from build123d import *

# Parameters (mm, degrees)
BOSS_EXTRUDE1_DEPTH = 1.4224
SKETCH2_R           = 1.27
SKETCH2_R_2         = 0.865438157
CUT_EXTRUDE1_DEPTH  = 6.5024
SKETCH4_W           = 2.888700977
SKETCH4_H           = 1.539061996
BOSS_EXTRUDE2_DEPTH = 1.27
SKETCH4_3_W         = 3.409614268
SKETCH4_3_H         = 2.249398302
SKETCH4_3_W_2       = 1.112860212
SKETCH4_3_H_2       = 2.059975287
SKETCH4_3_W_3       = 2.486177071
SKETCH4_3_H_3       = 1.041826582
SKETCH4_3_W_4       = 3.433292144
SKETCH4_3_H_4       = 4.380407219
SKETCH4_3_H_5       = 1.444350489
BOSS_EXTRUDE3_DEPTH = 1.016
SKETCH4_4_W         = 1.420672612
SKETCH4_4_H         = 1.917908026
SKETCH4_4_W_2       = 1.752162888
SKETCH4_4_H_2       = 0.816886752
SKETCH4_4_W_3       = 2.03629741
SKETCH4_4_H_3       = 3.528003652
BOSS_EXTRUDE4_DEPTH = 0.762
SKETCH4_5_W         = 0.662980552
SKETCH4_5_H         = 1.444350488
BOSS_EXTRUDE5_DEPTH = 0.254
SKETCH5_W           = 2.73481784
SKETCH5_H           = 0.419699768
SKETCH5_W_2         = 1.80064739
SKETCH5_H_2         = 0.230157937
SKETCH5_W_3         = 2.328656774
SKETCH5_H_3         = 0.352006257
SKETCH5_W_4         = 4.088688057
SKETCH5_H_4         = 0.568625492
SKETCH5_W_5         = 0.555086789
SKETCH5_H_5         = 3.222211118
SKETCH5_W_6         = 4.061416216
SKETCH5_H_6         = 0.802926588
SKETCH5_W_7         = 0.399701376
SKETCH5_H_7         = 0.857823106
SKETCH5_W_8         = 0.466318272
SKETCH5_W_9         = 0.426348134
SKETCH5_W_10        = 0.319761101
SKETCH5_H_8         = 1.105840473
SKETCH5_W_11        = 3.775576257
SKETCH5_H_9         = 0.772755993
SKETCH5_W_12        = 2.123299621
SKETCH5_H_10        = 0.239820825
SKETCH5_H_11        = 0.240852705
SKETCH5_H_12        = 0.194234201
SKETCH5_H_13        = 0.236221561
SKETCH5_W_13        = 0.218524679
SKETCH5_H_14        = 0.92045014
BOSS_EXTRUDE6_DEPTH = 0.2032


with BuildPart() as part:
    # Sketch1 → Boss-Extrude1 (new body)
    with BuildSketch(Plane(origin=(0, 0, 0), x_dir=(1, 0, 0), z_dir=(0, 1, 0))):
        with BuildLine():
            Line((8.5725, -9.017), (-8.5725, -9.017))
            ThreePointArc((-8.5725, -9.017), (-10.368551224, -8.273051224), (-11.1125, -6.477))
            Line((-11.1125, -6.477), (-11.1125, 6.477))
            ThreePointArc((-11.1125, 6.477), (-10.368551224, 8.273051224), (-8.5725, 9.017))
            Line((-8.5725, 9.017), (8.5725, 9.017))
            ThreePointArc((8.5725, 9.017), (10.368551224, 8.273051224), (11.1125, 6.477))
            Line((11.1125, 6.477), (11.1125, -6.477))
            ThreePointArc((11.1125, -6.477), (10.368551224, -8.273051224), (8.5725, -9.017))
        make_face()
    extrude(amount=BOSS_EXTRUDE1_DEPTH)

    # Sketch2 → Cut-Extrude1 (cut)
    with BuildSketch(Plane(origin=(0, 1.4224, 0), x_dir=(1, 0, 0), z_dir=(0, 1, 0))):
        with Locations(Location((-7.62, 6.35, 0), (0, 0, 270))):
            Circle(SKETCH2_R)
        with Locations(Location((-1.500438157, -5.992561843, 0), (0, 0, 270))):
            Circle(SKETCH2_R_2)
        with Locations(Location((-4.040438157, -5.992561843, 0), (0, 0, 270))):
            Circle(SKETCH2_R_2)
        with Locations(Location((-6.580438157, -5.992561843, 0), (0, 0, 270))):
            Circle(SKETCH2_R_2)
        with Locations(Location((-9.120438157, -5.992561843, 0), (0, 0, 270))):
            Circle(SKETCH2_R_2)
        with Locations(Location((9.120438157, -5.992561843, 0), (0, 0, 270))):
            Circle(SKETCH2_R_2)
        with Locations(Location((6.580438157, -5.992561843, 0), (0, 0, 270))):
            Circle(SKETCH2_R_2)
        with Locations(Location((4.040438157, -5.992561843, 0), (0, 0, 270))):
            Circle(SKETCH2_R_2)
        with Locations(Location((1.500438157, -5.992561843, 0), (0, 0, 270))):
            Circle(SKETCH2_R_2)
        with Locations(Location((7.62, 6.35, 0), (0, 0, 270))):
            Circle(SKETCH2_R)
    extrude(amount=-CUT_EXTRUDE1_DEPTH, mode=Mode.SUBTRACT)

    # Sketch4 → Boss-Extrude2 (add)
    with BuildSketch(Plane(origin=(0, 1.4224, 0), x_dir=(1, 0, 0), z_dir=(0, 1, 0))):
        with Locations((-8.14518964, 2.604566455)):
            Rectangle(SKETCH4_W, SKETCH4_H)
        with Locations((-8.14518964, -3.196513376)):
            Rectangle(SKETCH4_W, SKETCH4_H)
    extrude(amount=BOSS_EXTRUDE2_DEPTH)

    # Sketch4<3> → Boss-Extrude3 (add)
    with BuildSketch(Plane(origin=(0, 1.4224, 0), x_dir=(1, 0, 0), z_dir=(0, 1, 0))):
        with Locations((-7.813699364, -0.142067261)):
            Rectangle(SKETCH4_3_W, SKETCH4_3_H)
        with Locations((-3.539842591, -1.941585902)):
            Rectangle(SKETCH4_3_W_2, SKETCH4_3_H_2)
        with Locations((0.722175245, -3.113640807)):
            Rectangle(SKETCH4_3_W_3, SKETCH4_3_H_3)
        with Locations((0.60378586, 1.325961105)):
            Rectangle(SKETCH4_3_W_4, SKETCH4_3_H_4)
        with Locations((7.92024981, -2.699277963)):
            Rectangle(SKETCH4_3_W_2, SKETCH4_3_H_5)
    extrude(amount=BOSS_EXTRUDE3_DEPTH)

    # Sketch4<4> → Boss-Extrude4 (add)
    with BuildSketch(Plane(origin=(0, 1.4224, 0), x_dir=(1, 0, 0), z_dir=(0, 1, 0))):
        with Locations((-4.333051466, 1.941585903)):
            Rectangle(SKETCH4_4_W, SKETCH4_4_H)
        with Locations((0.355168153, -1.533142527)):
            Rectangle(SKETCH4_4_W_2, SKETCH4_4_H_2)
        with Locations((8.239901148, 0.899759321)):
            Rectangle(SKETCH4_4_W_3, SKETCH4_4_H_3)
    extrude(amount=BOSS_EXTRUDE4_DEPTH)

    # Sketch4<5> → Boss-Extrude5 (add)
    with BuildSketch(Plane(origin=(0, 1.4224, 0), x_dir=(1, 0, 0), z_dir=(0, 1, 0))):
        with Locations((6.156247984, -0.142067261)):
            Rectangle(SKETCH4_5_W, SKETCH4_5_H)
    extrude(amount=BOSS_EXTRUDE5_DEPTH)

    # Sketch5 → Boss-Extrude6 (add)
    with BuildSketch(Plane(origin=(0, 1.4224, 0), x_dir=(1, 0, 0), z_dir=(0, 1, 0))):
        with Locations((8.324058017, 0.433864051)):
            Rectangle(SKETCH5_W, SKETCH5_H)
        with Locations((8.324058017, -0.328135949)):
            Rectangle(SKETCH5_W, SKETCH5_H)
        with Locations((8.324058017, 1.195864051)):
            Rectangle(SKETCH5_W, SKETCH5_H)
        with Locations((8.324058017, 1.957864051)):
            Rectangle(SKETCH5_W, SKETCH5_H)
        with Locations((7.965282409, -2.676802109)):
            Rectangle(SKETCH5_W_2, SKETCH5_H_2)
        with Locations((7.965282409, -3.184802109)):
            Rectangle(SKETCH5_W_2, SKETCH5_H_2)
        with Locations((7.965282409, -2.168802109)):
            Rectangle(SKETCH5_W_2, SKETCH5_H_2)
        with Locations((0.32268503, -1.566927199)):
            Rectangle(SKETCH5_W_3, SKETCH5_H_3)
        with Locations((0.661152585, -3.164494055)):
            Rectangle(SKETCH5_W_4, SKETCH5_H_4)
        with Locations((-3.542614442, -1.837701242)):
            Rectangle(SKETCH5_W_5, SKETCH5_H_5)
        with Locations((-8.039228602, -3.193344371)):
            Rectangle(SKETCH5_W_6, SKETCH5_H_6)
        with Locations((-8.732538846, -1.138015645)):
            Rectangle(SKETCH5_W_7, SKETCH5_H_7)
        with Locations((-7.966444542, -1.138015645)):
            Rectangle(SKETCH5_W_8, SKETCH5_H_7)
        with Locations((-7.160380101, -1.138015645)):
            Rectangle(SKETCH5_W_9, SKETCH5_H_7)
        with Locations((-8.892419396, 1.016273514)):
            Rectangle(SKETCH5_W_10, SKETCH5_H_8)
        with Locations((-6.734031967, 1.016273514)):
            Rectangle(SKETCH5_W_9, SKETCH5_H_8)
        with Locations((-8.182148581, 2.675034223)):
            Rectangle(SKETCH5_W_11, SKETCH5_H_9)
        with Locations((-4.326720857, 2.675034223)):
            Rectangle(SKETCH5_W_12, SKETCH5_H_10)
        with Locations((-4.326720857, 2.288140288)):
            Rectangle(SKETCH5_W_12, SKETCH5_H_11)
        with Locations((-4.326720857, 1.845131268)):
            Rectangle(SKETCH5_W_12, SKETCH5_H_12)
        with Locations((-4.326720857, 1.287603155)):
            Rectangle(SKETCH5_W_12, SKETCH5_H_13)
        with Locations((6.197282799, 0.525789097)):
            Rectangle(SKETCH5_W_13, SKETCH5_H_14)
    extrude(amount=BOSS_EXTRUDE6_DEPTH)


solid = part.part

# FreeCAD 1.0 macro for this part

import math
import FreeCAD as App
import Part
import Sketcher
Q = App.Units.Quantity


def add_polygon(sketch, points):
    """Adds a closed chain of lines whose ends are joined by coincident constraints."""
    first, n = sketch.GeometryCount, len(points)
    for a, b in zip(points, points[1:] + points[:1]):
        sketch.addGeometry(Part.LineSegment(App.Vector(*a, 0), App.Vector(*b, 0)), False)
    for i in range(n):
        sketch.addConstraint(Sketcher.Constraint("Coincident", first + i, 2, first + (i + 1) % n, 1))

doc = App.newDocument("Part")
body = doc.addObject("PartDesign::Body", "Body")

# Sketch on XZ plane
sketch1 = body.newObject("Sketcher::SketchObject", "Sketch")
sketch1.AttachmentSupport = (doc.getObject("XZ_Plane"), [""])
sketch1.MapMode = "FlatFace"
sketch1.addGeometry(Part.LineSegment(App.Vector(-8.5725, 9.017, 0), App.Vector(8.5725, 9.017, 0)), False)
sketch1.addGeometry(Part.ArcOfCircle(Part.Circle(App.Vector(8.5725, 6.477, 0), App.Vector(0, 0, 1), 2.54), math.radians(0), math.radians(90)), False)
sketch1.addGeometry(Part.LineSegment(App.Vector(11.1125, 6.477, 0), App.Vector(11.1125, -6.477, 0)), False)
sketch1.addGeometry(Part.ArcOfCircle(Part.Circle(App.Vector(8.5725, -6.477, 0), App.Vector(0, 0, 1), 2.54), math.radians(-90), math.radians(0)), False)
sketch1.addGeometry(Part.LineSegment(App.Vector(8.5725, -9.017, 0), App.Vector(-8.5725, -9.017, 0)), False)
sketch1.addGeometry(Part.ArcOfCircle(Part.Circle(App.Vector(-8.5725, -6.477, 0), App.Vector(0, 0, 1), 2.54), math.radians(-180), math.radians(-90)), False)
sketch1.addGeometry(Part.LineSegment(App.Vector(-11.1125, -6.477, 0), App.Vector(-11.1125, 6.477, 0)), False)
sketch1.addGeometry(Part.ArcOfCircle(Part.Circle(App.Vector(-8.5725, 6.477, 0), App.Vector(0, 0, 1), 2.54), math.radians(90), math.radians(180)), False)
sketch1.addConstraint(Sketcher.Constraint("Tangent", 0, 2, 1, 2))
sketch1.addConstraint(Sketcher.Constraint("Tangent", 1, 1, 2, 1))
sketch1.addConstraint(Sketcher.Constraint("Tangent", 2, 2, 3, 2))
sketch1.addConstraint(Sketcher.Constraint("Tangent", 3, 1, 4, 1))
sketch1.addConstraint(Sketcher.Constraint("Tangent", 4, 2, 5, 2))
sketch1.addConstraint(Sketcher.Constraint("Tangent", 5, 1, 6, 1))
sketch1.addConstraint(Sketcher.Constraint("Tangent", 6, 2, 7, 2))
sketch1.addConstraint(Sketcher.Constraint("Tangent", 7, 1, 0, 1))
sketch1.addConstraint(Sketcher.Constraint("Horizontal", 0))
sketch1.addConstraint(Sketcher.Constraint("Vertical", 2))
sketch1.addConstraint(Sketcher.Constraint("Horizontal", 4))
sketch1.addConstraint(Sketcher.Constraint("Vertical", 6))
sketch1.addConstraint(Sketcher.Constraint("Equal", 1, 3))
sketch1.addConstraint(Sketcher.Constraint("Equal", 3, 5))
sketch1.addConstraint(Sketcher.Constraint("Equal", 5, 7))
sketch1.addConstraint(Sketcher.Constraint("Symmetric", 1, 3, 5, 3, -1, 1))
sketch1.addConstraint(Sketcher.Constraint("Radius", 1, Q("0.1 in")))
sketch1.addConstraint(Sketcher.Constraint("DistanceY", 2, 2, 2, 1, Q("0.51 in")))
sketch1.addConstraint(Sketcher.Constraint("DistanceX", 0, 1, 0, 2, Q("0.675 in")))
pad1 = body.newObject("PartDesign::Pad", "Pad")
pad1.Profile = sketch1
pad1.Length = Q("0.056 in")
pad1.Reversed = True

# Sketch on XZ plane
sketch2 = body.newObject("Sketcher::SketchObject", "Sketch001")
sketch2.AttachmentSupport = (doc.getObject("XZ_Plane"), [""])
sketch2.MapMode = "FlatFace"
sketch2.AttachmentOffset = App.Placement(App.Vector(0, 0, -0.056 * 25.4), App.Rotation())
sketch2.addGeometry(Part.Circle(App.Vector(-7.62, -6.35, 0), App.Vector(0, 0, 1), 1.27), False)
sketch2.addGeometry(Part.Circle(App.Vector(-1.500438, 5.992562, 0), App.Vector(0, 0, 1), 0.865438), False)
sketch2.addGeometry(Part.Circle(App.Vector(-4.040438, 5.992562, 0), App.Vector(0, 0, 1), 0.865438), False)
sketch2.addGeometry(Part.Circle(App.Vector(-6.580438, 5.992562, 0), App.Vector(0, 0, 1), 0.865438), False)
sketch2.addGeometry(Part.Circle(App.Vector(-9.120438, 5.992562, 0), App.Vector(0, 0, 1), 0.865438), False)
sketch2.addGeometry(Part.Circle(App.Vector(9.120438, 5.992562, 0), App.Vector(0, 0, 1), 0.865438), False)
sketch2.addGeometry(Part.Circle(App.Vector(6.580438, 5.992562, 0), App.Vector(0, 0, 1), 0.865438), False)
sketch2.addGeometry(Part.Circle(App.Vector(4.040438, 5.992562, 0), App.Vector(0, 0, 1), 0.865438), False)
sketch2.addGeometry(Part.Circle(App.Vector(1.500438, 5.992562, 0), App.Vector(0, 0, 1), 0.865438), False)
sketch2.addGeometry(Part.Circle(App.Vector(7.62, -6.35, 0), App.Vector(0, 0, 1), 1.27), False)
sketch2.addConstraint(Sketcher.Constraint("Equal", 1, 2))
sketch2.addConstraint(Sketcher.Constraint("Equal", 2, 3))
sketch2.addConstraint(Sketcher.Constraint("Equal", 3, 4))
sketch2.addConstraint(Sketcher.Constraint("Equal", 4, 5))
sketch2.addConstraint(Sketcher.Constraint("Equal", 5, 6))
sketch2.addConstraint(Sketcher.Constraint("Equal", 6, 7))
sketch2.addConstraint(Sketcher.Constraint("Equal", 7, 8))
sketch2.addConstraint(Sketcher.Constraint("Equal", 0, 9))
sketch2.addConstraint(Sketcher.Constraint("Symmetric", 4, 3, 5, 3, -2))
sketch2.addConstraint(Sketcher.Constraint("Symmetric", 3, 3, 6, 3, -2))
sketch2.addConstraint(Sketcher.Constraint("Symmetric", 2, 3, 7, 3, -2))
sketch2.addConstraint(Sketcher.Constraint("Symmetric", 1, 3, 8, 3, -2))
sketch2.addConstraint(Sketcher.Constraint("Symmetric", 0, 3, 9, 3, -2))
sketch2.addConstraint(Sketcher.Constraint("Horizontal", 1, 3, 2, 3))
sketch2.addConstraint(Sketcher.Constraint("Horizontal", 2, 3, 3, 3))
sketch2.addConstraint(Sketcher.Constraint("Horizontal", 3, 3, 4, 3))
sketch2.addConstraint(Sketcher.Constraint("Diameter", 0, Q("0.1 in")))
sketch2.addConstraint(Sketcher.Constraint("DistanceX", 0, 3, -1, 1, Q("0.3 in")))
sketch2.addConstraint(Sketcher.Constraint("DistanceX", 2, 3, 1, 3, Q("0.1 in")))
sketch2.addConstraint(Sketcher.Constraint("DistanceX", 3, 3, 2, 3, Q("0.1 in")))
sketch2.addConstraint(Sketcher.Constraint("DistanceX", 4, 3, 3, 3, Q("0.1 in")))
sketch2.addConstraint(Sketcher.Constraint("DistanceY", 0, 3, -1, 1, Q("0.25 in")))
sketch2.addConstraint(Sketcher.Constraint("Diameter", 1, 1.730876))
sketch2.addConstraint(Sketcher.Constraint("DistanceX", 1, 3, -1, 1, 1.500438))
sketch2.addConstraint(Sketcher.Constraint("DistanceY", -1, 1, 1, 3, 5.992562))
pocket1 = body.newObject("PartDesign::Pocket", "Pocket")
pocket1.Profile = sketch2
pocket1.Length = Q("0.256 in")
pocket1.Reversed = True

# Sketch on XZ plane
sketch3 = body.newObject("Sketcher::SketchObject", "Sketch002")
sketch3.AttachmentSupport = (doc.getObject("XZ_Plane"), [""])
sketch3.MapMode = "FlatFace"
sketch3.AttachmentOffset = App.Placement(App.Vector(0, 0, -0.056 * 25.4), App.Rotation())
add_polygon(sketch3, [(-9.58954, -3.374097), (-9.58954, -1.835035), (-6.700839, -1.835035), (-6.700839, -3.374097)])  # lines 0-3
add_polygon(sketch3, [(-9.58954, 2.426982), (-9.58954, 3.966044), (-6.700839, 3.966044), (-6.700839, 2.426982)])  # lines 4-7
sketch3.addConstraint(Sketcher.Constraint("Vertical", 0))
sketch3.addConstraint(Sketcher.Constraint("Horizontal", 1))
sketch3.addConstraint(Sketcher.Constraint("Vertical", 2))
sketch3.addConstraint(Sketcher.Constraint("Horizontal", 3))
sketch3.addConstraint(Sketcher.Constraint("Vertical", 4))
sketch3.addConstraint(Sketcher.Constraint("Horizontal", 5))
sketch3.addConstraint(Sketcher.Constraint("Vertical", 6))
sketch3.addConstraint(Sketcher.Constraint("Horizontal", 7))
sketch3.addConstraint(Sketcher.Constraint("Vertical", 3, 2, 4, 2))
sketch3.addConstraint(Sketcher.Constraint("Vertical", 2, 2, 5, 2))
sketch3.addConstraint(Sketcher.Constraint("Equal", 2, 4))
sketch3.addConstraint(Sketcher.Constraint("DistanceX", 1, 1, 1, 2, 2.888701))
sketch3.addConstraint(Sketcher.Constraint("DistanceY", 0, 1, 0, 2, 1.539062))
sketch3.addConstraint(Sketcher.Constraint("DistanceX", 0, 2, -1, 1, 9.58954))
sketch3.addConstraint(Sketcher.Constraint("DistanceY", 0, 2, 4, 2, 5.80108))
sketch3.addConstraint(Sketcher.Constraint("DistanceY", 0, 2, -1, 1, 1.835035))
pad2 = body.newObject("PartDesign::Pad", "Pad001")
pad2.Profile = sketch3
pad2.Length = Q("0.05 in")
pad2.Reversed = True

# Sketch on XZ plane
sketch4 = body.newObject("Sketcher::SketchObject", "Sketch003")
sketch4.AttachmentSupport = (doc.getObject("XZ_Plane"), [""])
sketch4.MapMode = "FlatFace"
sketch4.AttachmentOffset = App.Placement(App.Vector(0, 0, -0.056 * 25.4), App.Rotation())
add_polygon(sketch4, [(-9.518506, -0.982632), (-9.518506, 1.266766), (-6.108892, 1.266766), (-6.108892, -0.982632)])  # lines 0-3
add_polygon(sketch4, [(-4.096273, 0.911598), (-4.096273, 2.971574), (-2.983412, 2.971574), (-2.983412, 0.911598)])  # lines 4-7
add_polygon(sketch4, [(-0.520913, 2.592728), (-0.520913, 3.634554), (1.965264, 3.634554), (1.965264, 2.592728)])  # lines 8-11
add_polygon(sketch4, [(-1.11286, -3.516165), (-1.11286, 0.864243), (2.320432, 0.864243), (2.320432, -3.516165)])  # lines 12-15
add_polygon(sketch4, [(7.36382, 1.977103), (7.36382, 3.421453), (8.47668, 3.421453), (8.47668, 1.977103)])  # lines 16-19
sketch4.addConstraint(Sketcher.Constraint("Vertical", 0))
sketch4.addConstraint(Sketcher.Constraint("Horizontal", 1))
sketch4.addConstraint(Sketcher.Constraint("Vertical", 2))
sketch4.addConstraint(Sketcher.Constraint("Horizontal", 3))
sketch4.addConstraint(Sketcher.Constraint("Vertical", 4))
sketch4.addConstraint(Sketcher.Constraint("Horizontal", 5))
sketch4.addConstraint(Sketcher.Constraint("Vertical", 6))
sketch4.addConstraint(Sketcher.Constraint("Horizontal", 7))
sketch4.addConstraint(Sketcher.Constraint("Vertical", 8))
sketch4.addConstraint(Sketcher.Constraint("Horizontal", 9))
sketch4.addConstraint(Sketcher.Constraint("Vertical", 10))
sketch4.addConstraint(Sketcher.Constraint("Horizontal", 11))
sketch4.addConstraint(Sketcher.Constraint("Vertical", 12))
sketch4.addConstraint(Sketcher.Constraint("Horizontal", 13))
sketch4.addConstraint(Sketcher.Constraint("Vertical", 14))
sketch4.addConstraint(Sketcher.Constraint("Horizontal", 15))
sketch4.addConstraint(Sketcher.Constraint("Vertical", 16))
sketch4.addConstraint(Sketcher.Constraint("Horizontal", 17))
sketch4.addConstraint(Sketcher.Constraint("Vertical", 18))
sketch4.addConstraint(Sketcher.Constraint("Horizontal", 19))
sketch4.addConstraint(Sketcher.Constraint("Equal", 7, 17))
sketch4.addConstraint(Sketcher.Constraint("DistanceY", 0, 1, 0, 2, 2.249398))
sketch4.addConstraint(Sketcher.Constraint("DistanceX", 5, 1, 5, 2, 1.11286))
sketch4.addConstraint(Sketcher.Constraint("DistanceY", 16, 1, 16, 2, 1.44435))
sketch4.addConstraint(Sketcher.Constraint("DistanceY", -1, 1, 6, 2, 0.911598))
sketch4.addConstraint(Sketcher.Constraint("DistanceX", 5, 2, 8, 2, 2.462499))
sketch4.addConstraint(Sketcher.Constraint("DistanceY", 16, 2, 9, 2, 0.213101))
sketch4.addConstraint(Sketcher.Constraint("DistanceX", 1, 1, 1, 2, 3.409614))
sketch4.addConstraint(Sketcher.Constraint("DistanceX", 9, 1, 9, 2, 2.486177))
sketch4.addConstraint(Sketcher.Constraint("DistanceX", 13, 1, 13, 2, 3.433292))
sketch4.addConstraint(Sketcher.Constraint("DistanceY", 4, 1, 4, 2, 2.059975))
sketch4.addConstraint(Sketcher.Constraint("DistanceY", 8, 1, 8, 2, 1.041827))
sketch4.addConstraint(Sketcher.Constraint("DistanceY", 12, 1, 12, 2, 4.380407))
sketch4.addConstraint(Sketcher.Constraint("DistanceY", 2, 2, -1, 1, 0.982632))
sketch4.addConstraint(Sketcher.Constraint("DistanceX", 12, 2, -1, 1, 1.11286))
sketch4.addConstraint(Sketcher.Constraint("DistanceX", -1, 1, 16, 2, 7.36382))
sketch4.addConstraint(Sketcher.Constraint("DistanceX", 1, 2, 4, 2, 2.01262))
sketch4.addConstraint(Sketcher.Constraint("DistanceY", 5, 2, 8, 2, 0.662981))
sketch4.addConstraint(Sketcher.Constraint("DistanceY", 12, 2, 5, 2, 2.107331))
sketch4.addConstraint(Sketcher.Constraint("DistanceX", 10, 2, 13, 2, 0.355168))
pad3 = body.newObject("PartDesign::Pad", "Pad002")
pad3.Profile = sketch4
pad3.Length = Q("0.04 in")
pad3.Reversed = True

# Sketch on XZ plane
sketch5 = body.newObject("Sketcher::SketchObject", "Sketch004")
sketch5.AttachmentSupport = (doc.getObject("XZ_Plane"), [""])
sketch5.MapMode = "FlatFace"
sketch5.AttachmentOffset = App.Placement(App.Vector(0, 0, -0.056 * 25.4), App.Rotation())
add_polygon(sketch5, [(-5.043388, -2.90054), (-5.043388, -0.982632), (-3.622715, -0.982632), (-3.622715, -2.90054)])  # lines 0-3
add_polygon(sketch5, [(-0.520913, 1.124699), (-0.520913, 1.941586), (1.23125, 1.941586), (1.23125, 1.124699)])  # lines 4-7
add_polygon(sketch5, [(7.221752, -2.663761), (7.221752, 0.864243), (9.25805, 0.864243), (9.25805, -2.663761)])  # lines 8-11
sketch5.addConstraint(Sketcher.Constraint("Vertical", 0))
sketch5.addConstraint(Sketcher.Constraint("Horizontal", 1))
sketch5.addConstraint(Sketcher.Constraint("Vertical", 2))
sketch5.addConstraint(Sketcher.Constraint("Horizontal", 3))
sketch5.addConstraint(Sketcher.Constraint("Vertical", 4))
sketch5.addConstraint(Sketcher.Constraint("Horizontal", 5))
sketch5.addConstraint(Sketcher.Constraint("Vertical", 6))
sketch5.addConstraint(Sketcher.Constraint("Horizontal", 7))
sketch5.addConstraint(Sketcher.Constraint("Vertical", 8))
sketch5.addConstraint(Sketcher.Constraint("Horizontal", 9))
sketch5.addConstraint(Sketcher.Constraint("Vertical", 10))
sketch5.addConstraint(Sketcher.Constraint("Horizontal", 11))
sketch5.addConstraint(Sketcher.Constraint("DistanceY", 0, 1, 0, 2, 1.917908))
sketch5.addConstraint(Sketcher.Constraint("DistanceY", -1, 1, 6, 2, 1.124699))
sketch5.addConstraint(Sketcher.Constraint("DistanceX", 1, 2, 4, 2, 3.101802))
sketch5.addConstraint(Sketcher.Constraint("DistanceX", 6, 2, 9, 2, 8.0268))
sketch5.addConstraint(Sketcher.Constraint("DistanceX", 1, 1, 1, 2, 1.420673))
sketch5.addConstraint(Sketcher.Constraint("DistanceX", 5, 1, 5, 2, 1.752163))
sketch5.addConstraint(Sketcher.Constraint("DistanceX", 9, 1, 9, 2, 2.036297))
sketch5.addConstraint(Sketcher.Constraint("DistanceY", 4, 1, 4, 2, 0.816887))
sketch5.addConstraint(Sketcher.Constraint("DistanceY", 8, 1, 8, 2, 3.528004))
sketch5.addConstraint(Sketcher.Constraint("DistanceY", 0, 2, -1, 1, 0.982632))
sketch5.addConstraint(Sketcher.Constraint("DistanceX", -1, 1, 5, 2, 1.23125))
sketch5.addConstraint(Sketcher.Constraint("DistanceY", 10, 2, -1, 1, 2.663761))
pad4 = body.newObject("PartDesign::Pad", "Pad003")
pad4.Profile = sketch5
pad4.Length = Q("0.03 in")
pad4.Reversed = True

# Sketch on XZ plane
sketch6 = body.newObject("Sketcher::SketchObject", "Sketch005")
sketch6.AttachmentSupport = (doc.getObject("XZ_Plane"), [""])
sketch6.MapMode = "FlatFace"
sketch6.AttachmentOffset = App.Placement(App.Vector(0, 0, -0.056 * 25.4), App.Rotation())
add_polygon(sketch6, [(5.824758, -0.580108), (5.824758, 0.864243), (6.487738, 0.864243), (6.487738, -0.580108)])  # lines 0-3
sketch6.addConstraint(Sketcher.Constraint("Vertical", 0))
sketch6.addConstraint(Sketcher.Constraint("Horizontal", 1))
sketch6.addConstraint(Sketcher.Constraint("Vertical", 2))
sketch6.addConstraint(Sketcher.Constraint("Horizontal", 3))
sketch6.addConstraint(Sketcher.Constraint("DistanceX", 1, 1, 1, 2, 0.662981))
sketch6.addConstraint(Sketcher.Constraint("DistanceY", 0, 1, 0, 2, 1.44435))
sketch6.addConstraint(Sketcher.Constraint("DistanceX", -1, 1, 1, 2, 6.487738))
sketch6.addConstraint(Sketcher.Constraint("DistanceY", -1, 1, 0, 2, 0.864243))
pad5 = body.newObject("PartDesign::Pad", "Pad004")
pad5.Profile = sketch6
pad5.Length = Q("0.01 in")
pad5.Reversed = True

# Sketch on XZ plane
sketch7 = body.newObject("Sketcher::SketchObject", "Sketch006")
sketch7.AttachmentSupport = (doc.getObject("XZ_Plane"), [""])
sketch7.MapMode = "FlatFace"
sketch7.AttachmentOffset = App.Placement(App.Vector(0, 0, -0.056 * 25.4), App.Rotation())
add_polygon(sketch7, [(6.956649, -0.643714), (6.956649, -0.224014), (9.691467, -0.224014), (9.691467, -0.643714)])  # lines 0-3
add_polygon(sketch7, [(6.956649, 0.118286), (6.956649, 0.537986), (9.691467, 0.537986), (9.691467, 0.118286)])  # lines 4-7
add_polygon(sketch7, [(6.956649, -1.405714), (6.956649, -0.986014), (9.691467, -0.986014), (9.691467, -1.405714)])  # lines 8-11
add_polygon(sketch7, [(6.956649, -2.167714), (6.956649, -1.748014), (9.691467, -1.748014), (9.691467, -2.167714)])  # lines 12-15
add_polygon(sketch7, [(7.064959, 2.561723), (7.064959, 2.791881), (8.865606, 2.791881), (8.865606, 2.561723)])  # lines 16-19
add_polygon(sketch7, [(7.064959, 3.069723), (7.064959, 3.299881), (8.865606, 3.299881), (8.865606, 3.069723)])  # lines 20-23
add_polygon(sketch7, [(7.064959, 2.053723), (7.064959, 2.283881), (8.865606, 2.283881), (8.865606, 2.053723)])  # lines 24-27
add_polygon(sketch7, [(-0.841643, 1.390924), (-0.841643, 1.74293), (1.487013, 1.74293), (1.487013, 1.390924)])  # lines 28-31
add_polygon(sketch7, [(-1.383191, 2.880181), (-1.383191, 3.448807), (2.705497, 3.448807), (2.705497, 2.880181)])  # lines 32-35
add_polygon(sketch7, [(-3.820158, 0.226596), (-3.820158, 3.448807), (-3.265071, 3.448807), (-3.265071, 0.226596)])  # lines 36-39
add_polygon(sketch7, [(-10.069937, 2.791881), (-10.069937, 3.594808), (-6.00852, 3.594808), (-6.00852, 2.791881)])  # lines 40-43
add_polygon(sketch7, [(-8.93239, 0.709104), (-8.93239, 1.566927), (-8.532688, 1.566927), (-8.532688, 0.709104)])  # lines 44-47
add_polygon(sketch7, [(-8.199604, 0.709104), (-8.199604, 1.566927), (-7.733285, 1.566927), (-7.733285, 0.709104)])  # lines 48-51
add_polygon(sketch7, [(-7.373554, 0.709104), (-7.373554, 1.566927), (-6.947206, 1.566927), (-6.947206, 0.709104)])  # lines 52-55
add_polygon(sketch7, [(-9.0523, -1.569194), (-9.0523, -0.463353), (-8.732539, -0.463353), (-8.732539, -1.569194)])  # lines 56-59
add_polygon(sketch7, [(-6.947206, -1.569194), (-6.947206, -0.463353), (-6.520858, -0.463353), (-6.520858, -1.569194)])  # lines 60-63
add_polygon(sketch7, [(-10.069937, -3.061412), (-10.069937, -2.288656), (-6.29436, -2.288656), (-6.29436, -3.061412)])  # lines 64-67
add_polygon(sketch7, [(-5.388371, -2.794945), (-5.388371, -2.555124), (-3.265071, -2.555124), (-3.265071, -2.794945)])  # lines 68-71
add_polygon(sketch7, [(-5.388371, -2.408567), (-5.388371, -2.167714), (-3.265071, -2.167714), (-3.265071, -2.408567)])  # lines 72-75
add_polygon(sketch7, [(-5.388371, -1.942248), (-5.388371, -1.748014), (-3.265071, -1.748014), (-3.265071, -1.942248)])  # lines 76-79
add_polygon(sketch7, [(-5.388371, -1.405714), (-5.388371, -1.169492), (-3.265071, -1.169492), (-3.265071, -1.405714)])  # lines 80-83
add_polygon(sketch7, [(6.08802, -0.986014), (6.08802, -0.065564), (6.306545, -0.065564), (6.306545, -0.986014)])  # lines 84-87
sketch7.addConstraint(Sketcher.Constraint("Vertical", 0))
sketch7.addConstraint(Sketcher.Constraint("Horizontal", 1))
sketch7.addConstraint(Sketcher.Constraint("Vertical", 2))
sketch7.addConstraint(Sketcher.Constraint("Horizontal", 3))
sketch7.addConstraint(Sketcher.Constraint("Vertical", 4))
sketch7.addConstraint(Sketcher.Constraint("Horizontal", 5))
sketch7.addConstraint(Sketcher.Constraint("Vertical", 6))
sketch7.addConstraint(Sketcher.Constraint("Horizontal", 7))
sketch7.addConstraint(Sketcher.Constraint("Vertical", 8))
sketch7.addConstraint(Sketcher.Constraint("Horizontal", 9))
sketch7.addConstraint(Sketcher.Constraint("Vertical", 10))
sketch7.addConstraint(Sketcher.Constraint("Horizontal", 11))
sketch7.addConstraint(Sketcher.Constraint("Vertical", 12))
sketch7.addConstraint(Sketcher.Constraint("Horizontal", 13))
sketch7.addConstraint(Sketcher.Constraint("Vertical", 14))
sketch7.addConstraint(Sketcher.Constraint("Horizontal", 15))
sketch7.addConstraint(Sketcher.Constraint("Vertical", 16))
sketch7.addConstraint(Sketcher.Constraint("Horizontal", 17))
sketch7.addConstraint(Sketcher.Constraint("Vertical", 18))
sketch7.addConstraint(Sketcher.Constraint("Horizontal", 19))
sketch7.addConstraint(Sketcher.Constraint("Vertical", 20))
sketch7.addConstraint(Sketcher.Constraint("Horizontal", 21))
sketch7.addConstraint(Sketcher.Constraint("Vertical", 22))
sketch7.addConstraint(Sketcher.Constraint("Horizontal", 23))
sketch7.addConstraint(Sketcher.Constraint("Vertical", 24))
sketch7.addConstraint(Sketcher.Constraint("Horizontal", 25))
sketch7.addConstraint(Sketcher.Constraint("Vertical", 26))
sketch7.addConstraint(Sketcher.Constraint("Horizontal", 27))
sketch7.addConstraint(Sketcher.Constraint("Vertical", 28))
sketch7.addConstraint(Sketcher.Constraint("Horizontal", 29))
sketch7.addConstraint(Sketcher.Constraint("Vertical", 30))
sketch7.addConstraint(Sketcher.Constraint("Horizontal", 31))
sketch7.addConstraint(Sketcher.Constraint("Vertical", 32))
sketch7.addConstraint(Sketcher.Constraint("Horizontal", 33))
sketch7.addConstraint(Sketcher.Constraint("Vertical", 34))
sketch7.addConstraint(Sketcher.Constraint("Horizontal", 35))
sketch7.addConstraint(Sketcher.Constraint("Vertical", 36))
sketch7.addConstraint(Sketcher.Constraint("Horizontal", 37))
sketch7.addConstraint(Sketcher.Constraint("Vertical", 38))
sketch7.addConstraint(Sketcher.Constraint("Horizontal", 39))
sketch7.addConstraint(Sketcher.Constraint("Vertical", 40))
sketch7.addConstraint(Sketcher.Constraint("Horizontal", 41))
sketch7.addConstraint(Sketcher.Constraint("Vertical", 42))
sketch7.addConstraint(Sketcher.Constraint("Horizontal", 43))
sketch7.addConstraint(Sketcher.Constraint("Vertical", 44))
sketch7.addConstraint(Sketcher.Constraint("Horizontal", 45))
sketch7.addConstraint(Sketcher.Constraint("Vertical", 46))
sketch7.addConstraint(Sketcher.Constraint("Horizontal", 47))
sketch7.addConstraint(Sketcher.Constraint("Vertical", 48))
sketch7.addConstraint(Sketcher.Constraint("Horizontal", 49))
sketch7.addConstraint(Sketcher.Constraint("Vertical", 50))
sketch7.addConstraint(Sketcher.Constraint("Horizontal", 51))
sketch7.addConstraint(Sketcher.Constraint("Vertical", 52))
sketch7.addConstraint(Sketcher.Constraint("Horizontal", 53))
sketch7.addConstraint(Sketcher.Constraint("Vertical", 54))
sketch7.addConstraint(Sketcher.Constraint("Horizontal", 55))
sketch7.addConstraint(Sketcher.Constraint("Vertical", 56))
sketch7.addConstraint(Sketcher.Constraint("Horizontal", 57))
sketch7.addConstraint(Sketcher.Constraint("Vertical", 58))
sketch7.addConstraint(Sketcher.Constraint("Horizontal", 59))
sketch7.addConstraint(Sketcher.Constraint("Vertical", 60))
sketch7.addConstraint(Sketcher.Constraint("Horizontal", 61))
sketch7.addConstraint(Sketcher.Constraint("Vertical", 62))
sketch7.addConstraint(Sketcher.Constraint("Horizontal", 63))
sketch7.addConstraint(Sketcher.Constraint("Vertical", 64))
sketch7.addConstraint(Sketcher.Constraint("Horizontal", 65))
sketch7.addConstraint(Sketcher.Constraint("Vertical", 66))
sketch7.addConstraint(Sketcher.Constraint("Horizontal", 67))
sketch7.addConstraint(Sketcher.Constraint("Vertical", 68))
sketch7.addConstraint(Sketcher.Constraint("Horizontal", 69))
sketch7.addConstraint(Sketcher.Constraint("Vertical", 70))
sketch7.addConstraint(Sketcher.Constraint("Horizontal", 71))
sketch7.addConstraint(Sketcher.Constraint("Vertical", 72))
sketch7.addConstraint(Sketcher.Constraint("Horizontal", 73))
sketch7.addConstraint(Sketcher.Constraint("Vertical", 74))
sketch7.addConstraint(Sketcher.Constraint("Horizontal", 75))
sketch7.addConstraint(Sketcher.Constraint("Vertical", 76))
sketch7.addConstraint(Sketcher.Constraint("Horizontal", 77))
sketch7.addConstraint(Sketcher.Constraint("Vertical", 78))
sketch7.addConstraint(Sketcher.Constraint("Horizontal", 79))
sketch7.addConstraint(Sketcher.Constraint("Vertical", 80))
sketch7.addConstraint(Sketcher.Constraint("Horizontal", 81))
sketch7.addConstraint(Sketcher.Constraint("Vertical", 82))
sketch7.addConstraint(Sketcher.Constraint("Horizontal", 83))
sketch7.addConstraint(Sketcher.Constraint("Vertical", 84))
sketch7.addConstraint(Sketcher.Constraint("Horizontal", 85))
sketch7.addConstraint(Sketcher.Constraint("Vertical", 86))
sketch7.addConstraint(Sketcher.Constraint("Horizontal", 87))
sketch7.addConstraint(Sketcher.Constraint("Horizontal", 33, 2, 36, 2))
sketch7.addConstraint(Sketcher.Constraint("Horizontal", 17, 2, 42, 2))
sketch7.addConstraint(Sketcher.Constraint("Horizontal", 45, 2, 48, 2))
sketch7.addConstraint(Sketcher.Constraint("Horizontal", 47, 2, 50, 2))
sketch7.addConstraint(Sketcher.Constraint("Horizontal", 49, 2, 52, 2))
sketch7.addConstraint(Sketcher.Constraint("Horizontal", 51, 2, 54, 2))
sketch7.addConstraint(Sketcher.Constraint("Horizontal", 57, 2, 60, 2))
sketch7.addConstraint(Sketcher.Constraint("Horizontal", 59, 2, 62, 2))
sketch7.addConstraint(Sketcher.Constraint("Horizontal", 15, 2, 72, 2))
sketch7.addConstraint(Sketcher.Constraint("Horizontal", 13, 2, 76, 2))
sketch7.addConstraint(Sketcher.Constraint("Horizontal", 11, 2, 82, 2))
sketch7.addConstraint(Sketcher.Constraint("Horizontal", 9, 2, 86, 2))
sketch7.addConstraint(Sketcher.Constraint("Vertical", 3, 2, 4, 2))
sketch7.addConstraint(Sketcher.Constraint("Vertical", 2, 2, 5, 2))
sketch7.addConstraint(Sketcher.Constraint("Vertical", 7, 2, 8, 2))
sketch7.addConstraint(Sketcher.Constraint("Vertical", 6, 2, 9, 2))
sketch7.addConstraint(Sketcher.Constraint("Vertical", 11, 2, 12, 2))
sketch7.addConstraint(Sketcher.Constraint("Vertical", 10, 2, 13, 2))
sketch7.addConstraint(Sketcher.Constraint("Vertical", 19, 2, 20, 2))
sketch7.addConstraint(Sketcher.Constraint("Vertical", 18, 2, 21, 2))
sketch7.addConstraint(Sketcher.Constraint("Vertical", 23, 2, 24, 2))
sketch7.addConstraint(Sketcher.Constraint("Vertical", 22, 2, 25, 2))
sketch7.addConstraint(Sketcher.Constraint("Vertical", 54, 2, 60, 2))
sketch7.addConstraint(Sketcher.Constraint("Vertical", 43, 2, 64, 2))
sketch7.addConstraint(Sketcher.Constraint("Vertical", 38, 2, 69, 2))
sketch7.addConstraint(Sketcher.Constraint("Vertical", 71, 2, 72, 2))
sketch7.addConstraint(Sketcher.Constraint("Vertical", 70, 2, 73, 2))
sketch7.addConstraint(Sketcher.Constraint("Vertical", 75, 2, 76, 2))
sketch7.addConstraint(Sketcher.Constraint("Vertical", 74, 2, 77, 2))
sketch7.addConstraint(Sketcher.Constraint("Vertical", 79, 2, 80, 2))
sketch7.addConstraint(Sketcher.Constraint("Vertical", 78, 2, 81, 2))
sketch7.addConstraint(Sketcher.Constraint("Equal", 55, 61))
sketch7.addConstraint(Sketcher.Constraint("Equal", 2, 4))
sketch7.addConstraint(Sketcher.Constraint("Equal", 6, 8))
sketch7.addConstraint(Sketcher.Constraint("Equal", 10, 12))
sketch7.addConstraint(Sketcher.Constraint("Equal", 18, 20))
sketch7.addConstraint(Sketcher.Constraint("Equal", 22, 24))
sketch7.addConstraint(Sketcher.Constraint("DistanceY", 80, 1, 80, 2, Q("0.0093001 in")))
sketch7.addConstraint(Sketcher.Constraint("DistanceX", 45, 1, 45, 2, 0.399701))
sketch7.addConstraint(Sketcher.Constraint("DistanceX", 69, 1, 69, 2, 2.1233))
sketch7.addConstraint(Sketcher.Constraint("DistanceY", 0, 1, 0, 2, 0.4197))
sketch7.addConstraint(Sketcher.Constraint("DistanceX", 36, 2, -1, 1, Q("0.1503999 in")))
sketch7.addConstraint(Sketcher.Constraint("DistanceX", 33, 1, 33, 2, 4.088688))
sketch7.addConstraint(Sketcher.Constraint("DistanceX", 49, 1, 49, 2, 0.466318))
sketch7.addConstraint(Sketcher.Constraint("DistanceX", 53, 1, 53, 2, 0.426348))
sketch7.addConstraint(Sketcher.Constraint("DistanceX", 57, 1, 57, 2, 0.319761))
sketch7.addConstraint(Sketcher.Constraint("DistanceY", 36, 1, 36, 2, 3.222211))
sketch7.addConstraint(Sketcher.Constraint("DistanceY", 56, 1, 56, 2, 1.10584))
sketch7.addConstraint(Sketcher.Constraint("DistanceY", 68, 1, 68, 2, 0.239821))
sketch7.addConstraint(Sketcher.Constraint("DistanceY", 84, 1, 84, 2, 0.92045))
sketch7.addConstraint(Sketcher.Constraint("DistanceX", 56, 2, -1, 1, 9.0523))
sketch7.addConstraint(Sketcher.Constraint("DistanceX", 1, 1, 1, 2, 2.734818))
sketch7.addConstraint(Sketcher.Constraint("DistanceX", 17, 1, 17, 2, 1.800647))
sketch7.addConstraint(Sketcher.Constraint("DistanceX", 29, 1, 29, 2, 2.328657))
sketch7.addConstraint(Sketcher.Constraint("DistanceX", 37, 1, 37, 2, 0.555087))
sketch7.addConstraint(Sketcher.Constraint("DistanceX", 41, 1, 41, 2, 4.061416))
sketch7.addConstraint(Sketcher.Constraint("DistanceX", 65, 1, 65, 2, 3.775576))
sketch7.addConstraint(Sketcher.Constraint("DistanceX", 85, 1, 85, 2, 0.218525))
sketch7.addConstraint(Sketcher.Constraint("DistanceY", 16, 1, 16, 2, 0.230158))
sketch7.addConstraint(Sketcher.Constraint("DistanceY", 28, 1, 28, 2, 0.352006))
sketch7.addConstraint(Sketcher.Constraint("DistanceY", 32, 1, 32, 2, 0.568625))
sketch7.addConstraint(Sketcher.Constraint("DistanceY", 40, 1, 40, 2, 0.802927))
sketch7.addConstraint(Sketcher.Constraint("DistanceY", 44, 1, 44, 2, 0.857823))
sketch7.addConstraint(Sketcher.Constraint("DistanceY", 64, 1, 64, 2, 0.772756))
sketch7.addConstraint(Sketcher.Constraint("DistanceY", 72, 1, 72, 2, 0.240853))
sketch7.addConstraint(Sketcher.Constraint("DistanceY", 76, 1, 76, 2, 0.194234))
sketch7.addConstraint(Sketcher.Constraint("DistanceX", -1, 1, 0, 2, 6.956649))
sketch7.addConstraint(Sketcher.Constraint("DistanceX", -1, 1, 16, 2, 7.064959))
sketch7.addConstraint(Sketcher.Constraint("DistanceY", -1, 1, 16, 2, 2.791881))
sketch7.addConstraint(Sketcher.Constraint("DistanceY", -1, 1, 20, 2, 3.299881))
sketch7.addConstraint(Sketcher.Constraint("DistanceY", -1, 1, 24, 2, 2.283881))
sketch7.addConstraint(Sketcher.Constraint("DistanceY", -1, 1, 28, 2, 1.74293))
sketch7.addConstraint(Sketcher.Constraint("DistanceX", 32, 2, -1, 1, 1.383191))
sketch7.addConstraint(Sketcher.Constraint("DistanceY", -1, 1, 34, 2, 2.880181))
sketch7.addConstraint(Sketcher.Constraint("DistanceX", 41, 2, -1, 1, 6.00852))
sketch7.addConstraint(Sketcher.Constraint("DistanceX", 44, 2, -1, 1, 8.93239))
sketch7.addConstraint(Sketcher.Constraint("DistanceY", 78, 2, -1, 1, 1.942248))
sketch7.addConstraint(Sketcher.Constraint("DistanceX", -1, 1, 84, 2, 6.08802))
sketch7.addConstraint(Sketcher.Constraint("DistanceY", 0, 2, -1, 1, 0.224014))
sketch7.addConstraint(Sketcher.Constraint("DistanceY", -1, 1, 4, 2, 0.537986))
sketch7.addConstraint(Sketcher.Constraint("DistanceY", 8, 2, -1, 1, 0.986014))
sketch7.addConstraint(Sketcher.Constraint("DistanceX", 28, 2, -1, 1, 0.841643))
sketch7.addConstraint(Sketcher.Constraint("DistanceY", -1, 1, 44, 2, 1.566927))
sketch7.addConstraint(Sketcher.Constraint("DistanceX", 48, 2, -1, 1, 8.199604))
sketch7.addConstraint(Sketcher.Constraint("DistanceX", 52, 2, -1, 1, 7.373554))
sketch7.addConstraint(Sketcher.Constraint("DistanceY", 56, 2, -1, 1, 0.463353))
sketch7.addConstraint(Sketcher.Constraint("DistanceY", 64, 2, -1, 1, 2.288656))
sketch7.addConstraint(Sketcher.Constraint("DistanceY", 68, 2, -1, 1, 2.555124))
pad6 = body.newObject("PartDesign::Pad", "Pad005")
pad6.Profile = sketch7
pad6.Length = Q("0.008 in")
pad6.Reversed = True

doc.recompute()
